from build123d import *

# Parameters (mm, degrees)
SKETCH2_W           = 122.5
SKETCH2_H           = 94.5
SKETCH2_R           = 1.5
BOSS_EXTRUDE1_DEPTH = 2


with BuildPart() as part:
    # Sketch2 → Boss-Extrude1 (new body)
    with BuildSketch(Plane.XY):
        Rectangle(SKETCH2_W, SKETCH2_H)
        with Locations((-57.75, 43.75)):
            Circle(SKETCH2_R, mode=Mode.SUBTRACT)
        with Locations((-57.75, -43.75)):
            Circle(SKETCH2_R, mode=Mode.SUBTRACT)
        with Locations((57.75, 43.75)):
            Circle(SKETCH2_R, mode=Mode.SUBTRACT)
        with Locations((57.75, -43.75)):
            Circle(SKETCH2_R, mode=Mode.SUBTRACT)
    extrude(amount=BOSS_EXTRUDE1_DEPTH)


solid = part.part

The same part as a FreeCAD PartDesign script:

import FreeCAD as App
import Part
import Sketcher
Q = App.Units.Quantity

doc = App.newDocument("Part")
body = doc.addObject("PartDesign::Body", "Body")

sketch1 = doc.addObject("Sketcher::SketchObject", "Sketch")
body.addObject(sketch1)
sketch1.AttachmentSupport = (doc.XY_Plane, [""])
sketch1.MapMode = "FlatFace"
sketch1.addGeometry([
    Part.LineSegment(App.Vector(-61.25, 47.25, 0), App.Vector(-61.25, -47.25, 0)),
    Part.LineSegment(App.Vector(-61.25, -47.25, 0), App.Vector(61.25, -47.25, 0)),
    Part.LineSegment(App.Vector(61.25, -47.25, 0), App.Vector(61.25, 47.25, 0)),
    Part.LineSegment(App.Vector(61.25, 47.25, 0), App.Vector(-61.25, 47.25, 0)),
    Part.Circle(App.Vector(-57.75, -43.75, 0), App.Vector(0, 0, 1), 1.5),
    Part.Circle(App.Vector(57.75, -43.75, 0), App.Vector(0, 0, 1), 1.5),
    Part.Circle(App.Vector(-57.75, 43.75, 0), App.Vector(0, 0, 1), 1.5),
    Part.Circle(App.Vector(57.75, 43.75, 0), App.Vector(0, 0, 1), 1.5),
], False)
sketch1.addConstraint([
    Sketcher.Constraint("Coincident", 0, 2, 1, 1),
    Sketcher.Constraint("Coincident", 1, 2, 2, 1),
    Sketcher.Constraint("Coincident", 2, 2, 3, 1),
    Sketcher.Constraint("Coincident", 3, 2, 0, 1),
    Sketcher.Constraint("Vertical", 0),
    Sketcher.Constraint("Horizontal", 1),
    Sketcher.Constraint("Vertical", 2),
    Sketcher.Constraint("Horizontal", 3),
    Sketcher.Constraint("Equal", 4, 5),
    Sketcher.Constraint("Equal", 5, 6),
    Sketcher.Constraint("Equal", 6, 7),
    Sketcher.Constraint("Symmetric", 5, 3, 6, 3, -1, 1),
    Sketcher.Constraint("Symmetric", 4, 3, 7, 3, -1, 1),
    Sketcher.Constraint("Symmetric", 0, 2, 2, 2, -1, 1),
    Sketcher.Constraint("Symmetric", 4, 3, 5, 3, -2),
    Sketcher.Constraint("Diameter", 4, Q("3 mm")),
    Sketcher.Constraint("DistanceX", 1, 1, 1, 2, Q("122.5 mm")),
    Sketcher.Constraint("DistanceY", 0, 2, 0, 1, Q("94.5 mm")),
    Sketcher.Constraint("DistanceY", 0, 2, 6, 3, Q("91 mm")),
    Sketcher.Constraint("DistanceX", 0, 2, 5, 3, Q("119 mm")),
])
pad1 = doc.addObject("PartDesign::Pad", "Pad")
body.addObject(pad1)
pad1.Profile = sketch1
pad1.Length = 2

doc.recompute()
